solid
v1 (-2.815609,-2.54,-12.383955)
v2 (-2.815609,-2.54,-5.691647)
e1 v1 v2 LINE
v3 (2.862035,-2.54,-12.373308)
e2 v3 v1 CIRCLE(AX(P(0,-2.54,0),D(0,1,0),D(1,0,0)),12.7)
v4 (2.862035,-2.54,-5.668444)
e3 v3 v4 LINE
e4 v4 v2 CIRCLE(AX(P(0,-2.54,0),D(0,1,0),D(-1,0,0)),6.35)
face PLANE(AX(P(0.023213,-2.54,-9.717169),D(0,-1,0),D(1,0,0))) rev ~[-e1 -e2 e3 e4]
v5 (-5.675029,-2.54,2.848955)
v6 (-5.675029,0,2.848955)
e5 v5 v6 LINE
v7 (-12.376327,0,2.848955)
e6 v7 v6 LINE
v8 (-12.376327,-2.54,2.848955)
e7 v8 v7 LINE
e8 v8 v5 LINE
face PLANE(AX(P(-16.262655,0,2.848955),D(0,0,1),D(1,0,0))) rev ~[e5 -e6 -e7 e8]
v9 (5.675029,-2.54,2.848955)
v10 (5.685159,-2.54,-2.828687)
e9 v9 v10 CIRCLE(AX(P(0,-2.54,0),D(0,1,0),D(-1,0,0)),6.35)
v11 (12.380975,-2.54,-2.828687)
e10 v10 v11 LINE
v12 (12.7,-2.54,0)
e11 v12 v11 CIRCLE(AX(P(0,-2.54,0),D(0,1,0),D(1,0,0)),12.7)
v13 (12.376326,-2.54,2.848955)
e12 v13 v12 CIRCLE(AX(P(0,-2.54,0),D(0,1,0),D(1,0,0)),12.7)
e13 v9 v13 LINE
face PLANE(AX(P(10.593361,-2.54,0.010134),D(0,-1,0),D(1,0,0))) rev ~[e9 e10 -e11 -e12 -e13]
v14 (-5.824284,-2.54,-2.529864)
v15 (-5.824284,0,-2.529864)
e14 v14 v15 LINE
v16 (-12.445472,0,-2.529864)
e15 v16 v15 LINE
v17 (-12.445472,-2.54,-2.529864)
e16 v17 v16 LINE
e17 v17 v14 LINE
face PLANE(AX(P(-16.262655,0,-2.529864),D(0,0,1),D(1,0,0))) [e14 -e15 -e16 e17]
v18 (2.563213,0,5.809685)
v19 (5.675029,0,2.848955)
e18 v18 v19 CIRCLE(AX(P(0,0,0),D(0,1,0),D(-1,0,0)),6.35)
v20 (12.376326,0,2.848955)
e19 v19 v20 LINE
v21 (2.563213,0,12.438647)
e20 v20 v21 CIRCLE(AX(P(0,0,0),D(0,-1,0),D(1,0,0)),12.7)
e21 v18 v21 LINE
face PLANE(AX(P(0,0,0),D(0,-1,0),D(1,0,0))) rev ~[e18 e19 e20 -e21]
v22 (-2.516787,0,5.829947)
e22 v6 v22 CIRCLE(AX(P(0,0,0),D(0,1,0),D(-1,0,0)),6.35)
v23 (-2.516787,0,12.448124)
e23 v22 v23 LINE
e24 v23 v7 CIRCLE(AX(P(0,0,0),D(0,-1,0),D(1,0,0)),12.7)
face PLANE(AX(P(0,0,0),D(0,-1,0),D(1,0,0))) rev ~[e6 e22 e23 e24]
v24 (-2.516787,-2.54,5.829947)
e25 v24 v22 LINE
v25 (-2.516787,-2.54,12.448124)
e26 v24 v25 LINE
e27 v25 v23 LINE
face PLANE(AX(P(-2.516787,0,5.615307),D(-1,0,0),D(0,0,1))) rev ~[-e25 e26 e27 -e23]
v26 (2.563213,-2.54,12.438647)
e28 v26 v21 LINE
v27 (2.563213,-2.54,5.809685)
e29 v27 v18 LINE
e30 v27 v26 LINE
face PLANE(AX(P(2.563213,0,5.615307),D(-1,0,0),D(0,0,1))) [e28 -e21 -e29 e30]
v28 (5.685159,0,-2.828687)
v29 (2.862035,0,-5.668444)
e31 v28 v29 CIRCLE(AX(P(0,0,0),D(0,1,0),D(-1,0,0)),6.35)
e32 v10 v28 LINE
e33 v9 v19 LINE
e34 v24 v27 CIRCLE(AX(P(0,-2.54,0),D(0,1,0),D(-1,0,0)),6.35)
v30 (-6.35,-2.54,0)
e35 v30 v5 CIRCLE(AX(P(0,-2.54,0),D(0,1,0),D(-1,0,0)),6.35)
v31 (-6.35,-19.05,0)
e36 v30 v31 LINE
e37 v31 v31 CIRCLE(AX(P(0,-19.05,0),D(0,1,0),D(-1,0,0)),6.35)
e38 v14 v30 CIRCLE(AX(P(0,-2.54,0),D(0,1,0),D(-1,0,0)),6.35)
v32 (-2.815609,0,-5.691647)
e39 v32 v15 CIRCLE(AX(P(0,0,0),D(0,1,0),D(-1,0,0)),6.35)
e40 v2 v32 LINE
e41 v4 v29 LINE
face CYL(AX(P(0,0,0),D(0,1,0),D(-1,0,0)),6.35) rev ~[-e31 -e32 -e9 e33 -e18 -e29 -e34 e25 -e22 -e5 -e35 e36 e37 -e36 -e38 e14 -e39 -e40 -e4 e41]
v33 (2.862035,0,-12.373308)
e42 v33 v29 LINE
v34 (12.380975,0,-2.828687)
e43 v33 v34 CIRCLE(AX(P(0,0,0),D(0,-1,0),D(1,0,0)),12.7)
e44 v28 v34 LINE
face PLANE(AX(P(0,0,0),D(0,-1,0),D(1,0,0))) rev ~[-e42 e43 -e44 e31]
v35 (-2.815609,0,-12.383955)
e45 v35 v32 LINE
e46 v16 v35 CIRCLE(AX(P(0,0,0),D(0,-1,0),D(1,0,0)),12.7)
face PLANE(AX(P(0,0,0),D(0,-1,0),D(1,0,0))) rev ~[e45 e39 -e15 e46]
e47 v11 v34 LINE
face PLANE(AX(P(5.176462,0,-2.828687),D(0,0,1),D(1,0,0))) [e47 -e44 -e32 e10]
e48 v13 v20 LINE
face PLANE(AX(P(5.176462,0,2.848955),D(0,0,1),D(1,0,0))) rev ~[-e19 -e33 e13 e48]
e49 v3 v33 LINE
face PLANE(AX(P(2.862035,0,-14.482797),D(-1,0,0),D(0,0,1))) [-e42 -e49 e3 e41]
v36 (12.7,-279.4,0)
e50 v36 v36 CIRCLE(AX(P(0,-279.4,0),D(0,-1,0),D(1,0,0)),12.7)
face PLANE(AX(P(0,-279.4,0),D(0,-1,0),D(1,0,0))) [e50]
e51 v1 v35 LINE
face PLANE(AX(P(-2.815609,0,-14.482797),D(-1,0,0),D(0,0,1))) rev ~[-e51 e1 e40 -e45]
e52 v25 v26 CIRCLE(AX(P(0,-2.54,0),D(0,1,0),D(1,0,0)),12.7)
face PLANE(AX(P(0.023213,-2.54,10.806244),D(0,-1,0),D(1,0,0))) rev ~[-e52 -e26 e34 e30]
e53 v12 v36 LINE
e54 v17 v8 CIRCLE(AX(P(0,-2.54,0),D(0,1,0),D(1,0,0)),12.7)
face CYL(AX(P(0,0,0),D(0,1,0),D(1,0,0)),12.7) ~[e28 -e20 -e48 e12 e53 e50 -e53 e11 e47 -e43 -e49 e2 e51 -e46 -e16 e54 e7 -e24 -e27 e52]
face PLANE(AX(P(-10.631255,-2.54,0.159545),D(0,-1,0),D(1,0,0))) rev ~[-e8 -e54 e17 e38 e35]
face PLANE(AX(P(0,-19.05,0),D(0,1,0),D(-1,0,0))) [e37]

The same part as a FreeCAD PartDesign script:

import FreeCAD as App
import Part
import Sketcher
from FreeCAD import Vector
Q = App.Units.Quantity


def add_polygon(sketch, points):
    """Adds a closed chain of lines whose ends are joined by coincident constraints."""
    first, n = sketch.GeometryCount, len(points)
    for a, b in zip(points, points[1:] + points[:1]):
        sketch.addGeometry(Part.LineSegment(App.Vector(*a, 0), App.Vector(*b, 0)), False)
    for i in range(n):
        sketch.addConstraint(Sketcher.Constraint("Coincident", first + i, 2, first + (i + 1) % n, 1))

doc = App.newDocument("Part")
body = doc.addObject("PartDesign::Body", "Body")

sketch1 = doc.addObject("Sketcher::SketchObject", "Sketch")
body.addObject(sketch1)
sketch1.AttachmentSupport = (doc.XZ_Plane, [""])
sketch1.MapMode = "FlatFace"
sketch1.addGeometry(Part.Circle(Vector(0, 0, 0), Vector(0, 0, 1), 13), False)
sketch1.addConstraint(Sketcher.Constraint("Coincident", 0, 3, -1, 1))
sketch1.addConstraint(Sketcher.Constraint("Diameter", 0, Q("1 in")))
pad1 = doc.addObject("PartDesign::Pad", "Pad")
body.addObject(pad1)
pad1.Profile = sketch1
pad1.Length = Q("11 in")

sketch2 = doc.addObject("Sketcher::SketchObject", "Sketch001")
body.addObject(sketch2)
sketch2.AttachmentSupport = (doc.XZ_Plane, [""])
sketch2.MapMode = "FlatFace"
sketch2.addGeometry(Part.Circle(Vector(0, 0, 0), Vector(0, 0, 1), 6), False)
sketch2.addConstraint(Sketcher.Constraint("Coincident", 0, 3, -1, 1))
sketch2.addConstraint(Sketcher.Constraint("Diameter", 0, Q("0.5 in")))
pocket1 = doc.addObject("PartDesign::Pocket", "Pocket")
body.addObject(pocket1)
pocket1.Profile = sketch2
pocket1.Length = Q("0.75 in")
pocket1.Reversed = True

sketch3 = doc.addObject("Sketcher::SketchObject", "Sketch002")
body.addObject(sketch3)
sketch3.AttachmentSupport = (doc.XZ_Plane, [""])
sketch3.MapMode = "FlatFace"
add_polygon(sketch3, [(-3, 16), (-3, 6), (3, 6), (3, 16)])
add_polygon(sketch3, [(-16, 3), (-16, -3), (-5, -3), (-5, 3)])
add_polygon(sketch3, [(-3, -5), (-3, -14), (3, -14), (3, -5)])
add_polygon(sketch3, [(5, 3), (5, -3), (16, -3), (16, 3)])
sketch3.addConstraint(Sketcher.Constraint("Vertical", 0))
sketch3.addConstraint(Sketcher.Constraint("Horizontal", 1))
sketch3.addConstraint(Sketcher.Constraint("Vertical", 2))
sketch3.addConstraint(Sketcher.Constraint("Horizontal", 3))
sketch3.addConstraint(Sketcher.Constraint("Vertical", 4))
sketch3.addConstraint(Sketcher.Constraint("Horizontal", 5))
sketch3.addConstraint(Sketcher.Constraint("Vertical", 6))
sketch3.addConstraint(Sketcher.Constraint("Horizontal", 7))
sketch3.addConstraint(Sketcher.Constraint("Vertical", 8))
sketch3.addConstraint(Sketcher.Constraint("Horizontal", 9))
sketch3.addConstraint(Sketcher.Constraint("Vertical", 10))
sketch3.addConstraint(Sketcher.Constraint("Horizontal", 11))
sketch3.addConstraint(Sketcher.Constraint("Vertical", 12))
sketch3.addConstraint(Sketcher.Constraint("Horizontal", 13))
sketch3.addConstraint(Sketcher.Constraint("Vertical", 14))
sketch3.addConstraint(Sketcher.Constraint("Horizontal", 15))
sketch3.addConstraint(Sketcher.Constraint("Horizontal", 7, 2, 14, 2))
sketch3.addConstraint(Sketcher.Constraint("Equal", 11, 12))
sketch3.addConstraint(Sketcher.Constraint("DistanceX", 1, 1, 1, 2, Q("0.2 in")))
sketch3.addConstraint(Sketcher.Constraint("DistanceX", 5, 1, 5, 2, 11.262799))
sketch3.addConstraint(Sketcher.Constraint("DistanceY", 4, 2, 4, 1, 5.378819))
sketch3.addConstraint(Sketcher.Constraint("DistanceX", 9, 1, 9, 2, 5.677644))
sketch3.addConstraint(Sketcher.Constraint("DistanceX", 13, 1, 13, 2, 10.833798))
sketch3.addConstraint(Sketcher.Constraint("DistanceY", 0, 2, 0, 1, 10.381874))
sketch3.addConstraint(Sketcher.Constraint("DistanceY", 8, 2, 8, 1, 9.531256))
sketch3.addConstraint(Sketcher.Constraint("DistanceY", -1, 1, 2, 2, 15.997181))
sketch3.addConstraint(Sketcher.Constraint("DistanceX", 8, 2, -1, 1, 2.815609))
sketch3.addConstraint(Sketcher.Constraint("DistanceY", 10, 2, -1, 1, 4.951541))
sketch3.addConstraint(Sketcher.Constraint("DistanceX", -1, 1, 13, 2, 16.01026))
sketch3.addConstraint(Sketcher.Constraint("DistanceY", 4, 2, 0, 2, 8.145172))
sketch3.addConstraint(Sketcher.Constraint("DistanceX", 5, 2, 0, 2, 2.483068))
sketch3.addConstraint(Sketcher.Constraint("DistanceX", 8, 2, 0, 2, 0.298822))
pocket2 = doc.addObject("PartDesign::Pocket", "Pocket001")
body.addObject(pocket2)
pocket2.Profile = sketch3
pocket2.Length = Q("0.1 in")
pocket2.Reversed = True

doc.recompute()
